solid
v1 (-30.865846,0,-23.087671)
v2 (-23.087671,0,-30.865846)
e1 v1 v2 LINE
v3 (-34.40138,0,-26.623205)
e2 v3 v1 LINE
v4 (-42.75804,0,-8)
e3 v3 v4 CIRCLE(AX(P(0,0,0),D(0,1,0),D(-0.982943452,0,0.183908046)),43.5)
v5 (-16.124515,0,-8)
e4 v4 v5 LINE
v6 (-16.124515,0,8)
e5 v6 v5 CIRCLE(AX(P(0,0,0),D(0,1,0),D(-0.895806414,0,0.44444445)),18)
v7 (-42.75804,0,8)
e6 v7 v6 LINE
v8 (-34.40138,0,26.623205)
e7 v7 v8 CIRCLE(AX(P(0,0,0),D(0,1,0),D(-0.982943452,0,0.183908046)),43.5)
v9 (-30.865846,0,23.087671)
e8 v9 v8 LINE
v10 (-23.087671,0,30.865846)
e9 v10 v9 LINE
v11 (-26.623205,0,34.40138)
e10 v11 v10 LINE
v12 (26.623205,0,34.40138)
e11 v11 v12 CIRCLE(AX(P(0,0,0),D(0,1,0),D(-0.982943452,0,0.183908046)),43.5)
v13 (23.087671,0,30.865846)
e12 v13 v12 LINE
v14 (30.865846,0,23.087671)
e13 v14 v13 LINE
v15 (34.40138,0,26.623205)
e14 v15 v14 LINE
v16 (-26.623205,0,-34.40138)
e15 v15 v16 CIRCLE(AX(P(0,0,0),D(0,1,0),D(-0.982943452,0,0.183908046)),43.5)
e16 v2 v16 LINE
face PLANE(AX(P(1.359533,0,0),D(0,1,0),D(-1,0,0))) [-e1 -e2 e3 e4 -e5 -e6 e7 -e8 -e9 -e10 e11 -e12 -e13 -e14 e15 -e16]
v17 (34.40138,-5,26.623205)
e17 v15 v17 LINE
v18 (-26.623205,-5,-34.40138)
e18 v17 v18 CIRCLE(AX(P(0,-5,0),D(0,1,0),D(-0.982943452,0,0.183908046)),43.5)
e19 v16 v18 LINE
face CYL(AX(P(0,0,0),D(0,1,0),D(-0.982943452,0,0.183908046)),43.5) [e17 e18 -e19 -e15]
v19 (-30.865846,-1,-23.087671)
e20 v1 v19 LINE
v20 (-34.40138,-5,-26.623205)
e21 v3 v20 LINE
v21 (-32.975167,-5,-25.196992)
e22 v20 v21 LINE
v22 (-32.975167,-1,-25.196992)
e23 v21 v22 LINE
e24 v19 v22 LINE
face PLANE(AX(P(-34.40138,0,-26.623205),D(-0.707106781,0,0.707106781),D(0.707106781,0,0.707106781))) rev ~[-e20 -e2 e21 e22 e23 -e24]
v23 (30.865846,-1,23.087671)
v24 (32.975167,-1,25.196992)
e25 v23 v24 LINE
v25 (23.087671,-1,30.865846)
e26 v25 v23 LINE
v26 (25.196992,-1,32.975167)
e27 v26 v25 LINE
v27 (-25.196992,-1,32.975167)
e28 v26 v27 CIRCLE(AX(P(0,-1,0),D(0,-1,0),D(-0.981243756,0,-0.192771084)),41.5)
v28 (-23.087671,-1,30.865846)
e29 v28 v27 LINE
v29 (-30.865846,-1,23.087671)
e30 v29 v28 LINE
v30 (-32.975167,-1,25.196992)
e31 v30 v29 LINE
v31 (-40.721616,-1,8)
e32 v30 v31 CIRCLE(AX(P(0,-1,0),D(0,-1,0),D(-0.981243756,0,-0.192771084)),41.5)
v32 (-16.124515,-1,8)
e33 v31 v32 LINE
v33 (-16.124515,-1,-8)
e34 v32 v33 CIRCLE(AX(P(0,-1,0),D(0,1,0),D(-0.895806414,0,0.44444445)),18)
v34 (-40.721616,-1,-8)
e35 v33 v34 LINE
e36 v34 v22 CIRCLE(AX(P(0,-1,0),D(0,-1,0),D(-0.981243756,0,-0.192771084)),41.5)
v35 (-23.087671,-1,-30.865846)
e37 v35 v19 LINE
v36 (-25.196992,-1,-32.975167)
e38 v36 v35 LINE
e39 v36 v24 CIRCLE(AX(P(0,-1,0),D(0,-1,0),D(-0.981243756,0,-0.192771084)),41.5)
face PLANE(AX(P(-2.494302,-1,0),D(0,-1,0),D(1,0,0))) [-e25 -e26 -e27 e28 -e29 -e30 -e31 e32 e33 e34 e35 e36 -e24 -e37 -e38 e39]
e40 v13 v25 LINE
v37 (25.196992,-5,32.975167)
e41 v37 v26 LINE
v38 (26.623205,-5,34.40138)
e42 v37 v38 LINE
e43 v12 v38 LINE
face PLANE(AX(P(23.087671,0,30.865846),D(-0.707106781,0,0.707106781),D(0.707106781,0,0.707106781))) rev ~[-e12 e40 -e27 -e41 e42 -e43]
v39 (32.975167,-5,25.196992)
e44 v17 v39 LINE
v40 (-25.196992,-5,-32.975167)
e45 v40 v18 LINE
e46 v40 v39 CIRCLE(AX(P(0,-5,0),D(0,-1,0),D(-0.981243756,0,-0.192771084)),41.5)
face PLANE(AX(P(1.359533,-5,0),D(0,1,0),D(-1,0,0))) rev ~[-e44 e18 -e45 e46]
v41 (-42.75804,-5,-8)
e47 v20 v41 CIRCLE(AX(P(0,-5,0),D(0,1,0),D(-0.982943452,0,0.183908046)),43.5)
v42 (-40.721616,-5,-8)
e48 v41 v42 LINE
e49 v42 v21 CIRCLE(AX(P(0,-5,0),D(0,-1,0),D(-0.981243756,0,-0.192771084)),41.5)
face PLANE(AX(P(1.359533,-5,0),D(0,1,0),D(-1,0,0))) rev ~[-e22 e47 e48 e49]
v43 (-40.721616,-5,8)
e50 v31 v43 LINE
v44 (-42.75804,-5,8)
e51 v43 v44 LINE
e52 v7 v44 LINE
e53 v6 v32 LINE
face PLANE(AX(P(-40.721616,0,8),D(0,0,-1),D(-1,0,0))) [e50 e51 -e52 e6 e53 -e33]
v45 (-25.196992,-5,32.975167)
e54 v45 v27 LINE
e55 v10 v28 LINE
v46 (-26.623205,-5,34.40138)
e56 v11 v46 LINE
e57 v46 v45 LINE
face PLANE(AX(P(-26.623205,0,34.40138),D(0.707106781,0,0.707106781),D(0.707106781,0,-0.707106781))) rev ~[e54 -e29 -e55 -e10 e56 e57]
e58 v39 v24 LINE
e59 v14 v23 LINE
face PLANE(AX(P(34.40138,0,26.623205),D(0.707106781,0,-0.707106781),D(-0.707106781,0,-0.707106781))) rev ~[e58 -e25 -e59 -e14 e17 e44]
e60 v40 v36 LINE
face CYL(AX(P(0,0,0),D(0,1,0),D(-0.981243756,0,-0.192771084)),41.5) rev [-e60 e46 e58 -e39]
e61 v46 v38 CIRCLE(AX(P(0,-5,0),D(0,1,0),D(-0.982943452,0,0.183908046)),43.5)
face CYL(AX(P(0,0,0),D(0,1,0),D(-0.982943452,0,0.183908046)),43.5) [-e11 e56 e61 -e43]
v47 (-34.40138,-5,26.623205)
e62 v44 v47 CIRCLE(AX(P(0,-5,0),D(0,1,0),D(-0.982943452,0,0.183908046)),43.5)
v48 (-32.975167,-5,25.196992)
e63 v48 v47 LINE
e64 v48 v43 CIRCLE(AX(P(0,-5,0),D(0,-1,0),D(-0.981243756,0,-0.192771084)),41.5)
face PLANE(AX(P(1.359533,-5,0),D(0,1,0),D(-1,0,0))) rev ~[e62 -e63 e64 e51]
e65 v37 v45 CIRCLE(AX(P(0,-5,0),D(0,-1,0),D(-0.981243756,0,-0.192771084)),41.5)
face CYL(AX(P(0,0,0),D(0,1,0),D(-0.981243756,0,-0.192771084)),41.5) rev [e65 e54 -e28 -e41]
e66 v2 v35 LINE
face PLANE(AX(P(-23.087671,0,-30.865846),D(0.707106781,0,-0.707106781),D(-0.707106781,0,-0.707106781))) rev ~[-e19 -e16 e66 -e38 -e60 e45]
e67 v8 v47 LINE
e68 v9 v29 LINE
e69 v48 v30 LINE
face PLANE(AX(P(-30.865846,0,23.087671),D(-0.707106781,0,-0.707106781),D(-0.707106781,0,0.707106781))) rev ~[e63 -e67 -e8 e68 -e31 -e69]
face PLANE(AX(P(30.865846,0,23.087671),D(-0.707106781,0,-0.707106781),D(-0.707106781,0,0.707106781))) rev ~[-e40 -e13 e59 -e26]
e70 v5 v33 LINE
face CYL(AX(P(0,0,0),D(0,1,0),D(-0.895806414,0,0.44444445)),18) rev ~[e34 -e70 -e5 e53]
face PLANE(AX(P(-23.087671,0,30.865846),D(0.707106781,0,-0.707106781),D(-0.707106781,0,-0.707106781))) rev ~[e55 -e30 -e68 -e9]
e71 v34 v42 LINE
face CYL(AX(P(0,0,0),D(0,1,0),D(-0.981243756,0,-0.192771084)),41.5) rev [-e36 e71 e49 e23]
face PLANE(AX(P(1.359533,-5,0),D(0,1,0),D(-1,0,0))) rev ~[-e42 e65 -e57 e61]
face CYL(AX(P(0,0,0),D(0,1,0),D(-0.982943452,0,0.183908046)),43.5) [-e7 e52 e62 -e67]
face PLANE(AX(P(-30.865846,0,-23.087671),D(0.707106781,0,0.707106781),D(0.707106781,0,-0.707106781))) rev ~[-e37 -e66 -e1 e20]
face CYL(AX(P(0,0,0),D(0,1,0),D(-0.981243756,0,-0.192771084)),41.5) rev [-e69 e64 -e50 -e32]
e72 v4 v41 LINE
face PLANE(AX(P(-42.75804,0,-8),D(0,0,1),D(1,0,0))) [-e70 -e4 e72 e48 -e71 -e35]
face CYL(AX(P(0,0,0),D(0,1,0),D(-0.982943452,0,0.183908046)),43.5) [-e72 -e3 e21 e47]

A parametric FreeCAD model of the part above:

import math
import FreeCAD as App
import Part
import Sketcher

doc = App.newDocument("Part")
body = doc.addObject("PartDesign::Body", "Body")

# Sketch on XZ plane
sketch1 = doc.addObject("Sketcher::SketchObject", "Sketch")
body.addObject(sketch1)
sketch1.AttachmentSupport = (doc.XZ_Plane, [""])
sketch1.MapMode = "FlatFace"
sketch1.addGeometry([
    Part.LineSegment(App.Vector(-16, -8, 0), App.Vector(-41, -8, 0)),
    Part.ArcOfCircle(Part.Circle(App.Vector(0, 0, 0), App.Vector(0, 0, 1), 42), math.radians(-169), math.radians(169)),
    Part.LineSegment(App.Vector(-41, 8, 0), App.Vector(-16, 8, 0)),
    Part.ArcOfCircle(Part.Circle(App.Vector(0, 0, 0), App.Vector(0, 0, 1), 18), math.radians(-154), math.radians(154)),
], False)
sketch1.addConstraint([
    Sketcher.Constraint("Coincident", 0, 2, 1, 1),
    Sketcher.Constraint("Coincident", 1, 2, 2, 1),
    Sketcher.Constraint("Coincident", 2, 2, 3, 2),
    Sketcher.Constraint("Coincident", 3, 1, 0, 1),
    Sketcher.Constraint("Horizontal", 0),
    Sketcher.Constraint("Horizontal", 2),
    Sketcher.Constraint("Coincident", 1, 3, -1, 1),
    Sketcher.Constraint("Coincident", 3, 3, -1, 1),
    Sketcher.Constraint("Vertical", 0, 2, 1, 2),
    Sketcher.Constraint("Radius", 3, 18.0),
    Sketcher.Constraint("Radius", 1, 41.5),
    Sketcher.Constraint("DistanceY", 0, 2, -1, 1, 8.0),
])
pad1 = doc.addObject("PartDesign::Pad", "Pad")
body.addObject(pad1)
pad1.Profile = sketch1
pad1.Length = 1

# Sketch on XZ plane
sketch2 = doc.addObject("Sketcher::SketchObject", "Sketch001")
body.addObject(sketch2)
sketch2.AttachmentSupport = (doc.XZ_Plane, [""])
sketch2.MapMode = "FlatFace"
sketch2.addGeometry([
    Part.LineSegment(App.Vector(-40.7, 8, 0), App.Vector(-42.8, 8, 0)),
    Part.ArcOfCircle(Part.Circle(App.Vector(0, 0, 0), App.Vector(0, 0, 1), 43.5), math.radians(-169), math.radians(169)),
    Part.LineSegment(App.Vector(-42.8, -8, 0), App.Vector(-40.7, -8, 0)),
    Part.ArcOfCircle(Part.Circle(App.Vector(0, 0, 0), App.Vector(0, 0, 1), 41.5), math.radians(-169), math.radians(169)),
], False)
sketch2.addConstraint([
    Sketcher.Constraint("Coincident", 0, 2, 1, 2),
    Sketcher.Constraint("Coincident", 1, 1, 2, 1),
    Sketcher.Constraint("Coincident", 2, 2, 3, 1),
    Sketcher.Constraint("Coincident", 3, 2, 0, 1),
    Sketcher.Constraint("Horizontal", 0),
    Sketcher.Constraint("Horizontal", 2),
    Sketcher.Constraint("Coincident", 1, 3, -1, 1),
    Sketcher.Constraint("Coincident", 3, 3, -1, 1),
    Sketcher.Constraint("Vertical", 0, 2, 1, 1),
    Sketcher.Constraint("Radius", 1, 43.5),
    Sketcher.Constraint("Radius", 3, 41.5),
    Sketcher.Constraint("DistanceY", -1, 1, 0, 2, 8.0),
])
pad2 = doc.addObject("PartDesign::Pad", "Pad001")
body.addObject(pad2)
pad2.Profile = sketch2
pad2.Length = 5

# Sketch on XZ plane
sketch3 = doc.addObject("Sketcher::SketchObject", "Sketch002")
body.addObject(sketch3)
sketch3.AttachmentSupport = (doc.XZ_Plane, [""])
sketch3.MapMode = "FlatFace"
sketch3.addGeometry([
    Part.LineSegment(App.Vector(-30.865846, -23.087671, 0), App.Vector(-23.087671, -30.865846, 0)),  # 0
    Part.LineSegment(App.Vector(-23.087671, -30.865846, 0), App.Vector(-26.623205, -34.40138, 0)),  # 1
    Part.ArcOfCircle(Part.Circle(App.Vector(-0.000012, -0.000012, 0), App.Vector(0, 0, 1), 43.499983), math.radians(-142.263739), math.radians(-127.736261)),  # 2
    Part.LineSegment(App.Vector(-34.40138, -26.623205, 0), App.Vector(-30.865846, -23.087671, 0)),  # 3
    Part.LineSegment(App.Vector(-26.623205, 34.40138, 0), App.Vector(-23.087671, 30.865846, 0)),  # 4
    Part.LineSegment(App.Vector(-23.087671, 30.865846, 0), App.Vector(-30.865846, 23.087671, 0)),  # 5
    Part.LineSegment(App.Vector(-30.865846, 23.087671, 0), App.Vector(-34.40138, 26.623205, 0)),  # 6
    Part.ArcOfCircle(Part.Circle(App.Vector(-0.000012, 0.000012, 0), App.Vector(0, 0, 1), 43.499983), math.radians(127.736261), math.radians(142.263739)),  # 7
    Part.LineSegment(App.Vector(34.40138, 26.623205, 0), App.Vector(30.865846, 23.087671, 0)),  # 8
    Part.LineSegment(App.Vector(30.865846, 23.087671, 0), App.Vector(23.087671, 30.865846, 0)),  # 9
    Part.LineSegment(App.Vector(23.087671, 30.865846, 0), App.Vector(26.623205, 34.40138, 0)),  # 10
    Part.ArcOfCircle(Part.Circle(App.Vector(0.000012, 0.000012, 0), App.Vector(0, 0, 1), 43.499983), math.radians(37.736261), math.radians(52.263739)),  # 11
], False)
sketch3.addConstraint([
    Sketcher.Constraint("Coincident", 0, 2, 1, 1),
    Sketcher.Constraint("Coincident", 1, 2, 2, 2),
    Sketcher.Constraint("Coincident", 2, 1, 3, 1),
    Sketcher.Constraint("Coincident", 3, 2, 0, 1),
    Sketcher.Constraint("Coincident", 4, 2, 5, 1),
    Sketcher.Constraint("Coincident", 5, 2, 6, 1),
    Sketcher.Constraint("Coincident", 6, 2, 7, 2),
    Sketcher.Constraint("Coincident", 7, 1, 4, 1),
    Sketcher.Constraint("Coincident", 8, 2, 9, 1),
    Sketcher.Constraint("Coincident", 9, 2, 10, 1),
    Sketcher.Constraint("Coincident", 10, 2, 11, 2),
    Sketcher.Constraint("Coincident", 11, 1, 8, 1),
    Sketcher.Constraint("Equal", 2, 7),
    Sketcher.Constraint("Equal", 7, 11),
    Sketcher.Constraint("Symmetric", 2, 3, 11, 3, -1, 1),
    Sketcher.Constraint("Symmetric", 3, 2, 8, 2, -1, 1),
    Sketcher.Constraint("Symmetric", 0, 2, 9, 2, -1, 1),
    Sketcher.Constraint("Symmetric", 7, 3, 11, 3, -2),
    Sketcher.Constraint("Symmetric", 5, 2, 8, 2, -2),
    Sketcher.Constraint("Symmetric", 4, 2, 9, 2, -2),
    Sketcher.Constraint("Perpendicular", 0, 1),
    Sketcher.Constraint("Parallel", 1, 3),
    Sketcher.Constraint("Perpendicular", 3, 4),
    Sketcher.Constraint("Perpendicular", 4, 5),
    Sketcher.Constraint("Perpendicular", 5, 6),
    Sketcher.Constraint("Perpendicular", 6, 8),
    Sketcher.Constraint("Perpendicular", 9, 10),
    Sketcher.Constraint("Equal", 1, 3),
    Sketcher.Constraint("Distance", 0, 11.000001),
    Sketcher.Constraint("Distance", 1, 5.0),
    Sketcher.Constraint("Radius", 2, 43.499983),
    Sketcher.Constraint("DistanceX", 0, 2, -1, 1, 23.087671),
    Sketcher.Constraint("DistanceY", 1, 2, -1, 1, 34.40138),
])
pocket1 = doc.addObject("PartDesign::Pocket", "Pocket")
body.addObject(pocket1)
pocket1.Profile = sketch3
pocket1.Type = "ThroughAll"
pocket1.Reversed = True

doc.recompute()
